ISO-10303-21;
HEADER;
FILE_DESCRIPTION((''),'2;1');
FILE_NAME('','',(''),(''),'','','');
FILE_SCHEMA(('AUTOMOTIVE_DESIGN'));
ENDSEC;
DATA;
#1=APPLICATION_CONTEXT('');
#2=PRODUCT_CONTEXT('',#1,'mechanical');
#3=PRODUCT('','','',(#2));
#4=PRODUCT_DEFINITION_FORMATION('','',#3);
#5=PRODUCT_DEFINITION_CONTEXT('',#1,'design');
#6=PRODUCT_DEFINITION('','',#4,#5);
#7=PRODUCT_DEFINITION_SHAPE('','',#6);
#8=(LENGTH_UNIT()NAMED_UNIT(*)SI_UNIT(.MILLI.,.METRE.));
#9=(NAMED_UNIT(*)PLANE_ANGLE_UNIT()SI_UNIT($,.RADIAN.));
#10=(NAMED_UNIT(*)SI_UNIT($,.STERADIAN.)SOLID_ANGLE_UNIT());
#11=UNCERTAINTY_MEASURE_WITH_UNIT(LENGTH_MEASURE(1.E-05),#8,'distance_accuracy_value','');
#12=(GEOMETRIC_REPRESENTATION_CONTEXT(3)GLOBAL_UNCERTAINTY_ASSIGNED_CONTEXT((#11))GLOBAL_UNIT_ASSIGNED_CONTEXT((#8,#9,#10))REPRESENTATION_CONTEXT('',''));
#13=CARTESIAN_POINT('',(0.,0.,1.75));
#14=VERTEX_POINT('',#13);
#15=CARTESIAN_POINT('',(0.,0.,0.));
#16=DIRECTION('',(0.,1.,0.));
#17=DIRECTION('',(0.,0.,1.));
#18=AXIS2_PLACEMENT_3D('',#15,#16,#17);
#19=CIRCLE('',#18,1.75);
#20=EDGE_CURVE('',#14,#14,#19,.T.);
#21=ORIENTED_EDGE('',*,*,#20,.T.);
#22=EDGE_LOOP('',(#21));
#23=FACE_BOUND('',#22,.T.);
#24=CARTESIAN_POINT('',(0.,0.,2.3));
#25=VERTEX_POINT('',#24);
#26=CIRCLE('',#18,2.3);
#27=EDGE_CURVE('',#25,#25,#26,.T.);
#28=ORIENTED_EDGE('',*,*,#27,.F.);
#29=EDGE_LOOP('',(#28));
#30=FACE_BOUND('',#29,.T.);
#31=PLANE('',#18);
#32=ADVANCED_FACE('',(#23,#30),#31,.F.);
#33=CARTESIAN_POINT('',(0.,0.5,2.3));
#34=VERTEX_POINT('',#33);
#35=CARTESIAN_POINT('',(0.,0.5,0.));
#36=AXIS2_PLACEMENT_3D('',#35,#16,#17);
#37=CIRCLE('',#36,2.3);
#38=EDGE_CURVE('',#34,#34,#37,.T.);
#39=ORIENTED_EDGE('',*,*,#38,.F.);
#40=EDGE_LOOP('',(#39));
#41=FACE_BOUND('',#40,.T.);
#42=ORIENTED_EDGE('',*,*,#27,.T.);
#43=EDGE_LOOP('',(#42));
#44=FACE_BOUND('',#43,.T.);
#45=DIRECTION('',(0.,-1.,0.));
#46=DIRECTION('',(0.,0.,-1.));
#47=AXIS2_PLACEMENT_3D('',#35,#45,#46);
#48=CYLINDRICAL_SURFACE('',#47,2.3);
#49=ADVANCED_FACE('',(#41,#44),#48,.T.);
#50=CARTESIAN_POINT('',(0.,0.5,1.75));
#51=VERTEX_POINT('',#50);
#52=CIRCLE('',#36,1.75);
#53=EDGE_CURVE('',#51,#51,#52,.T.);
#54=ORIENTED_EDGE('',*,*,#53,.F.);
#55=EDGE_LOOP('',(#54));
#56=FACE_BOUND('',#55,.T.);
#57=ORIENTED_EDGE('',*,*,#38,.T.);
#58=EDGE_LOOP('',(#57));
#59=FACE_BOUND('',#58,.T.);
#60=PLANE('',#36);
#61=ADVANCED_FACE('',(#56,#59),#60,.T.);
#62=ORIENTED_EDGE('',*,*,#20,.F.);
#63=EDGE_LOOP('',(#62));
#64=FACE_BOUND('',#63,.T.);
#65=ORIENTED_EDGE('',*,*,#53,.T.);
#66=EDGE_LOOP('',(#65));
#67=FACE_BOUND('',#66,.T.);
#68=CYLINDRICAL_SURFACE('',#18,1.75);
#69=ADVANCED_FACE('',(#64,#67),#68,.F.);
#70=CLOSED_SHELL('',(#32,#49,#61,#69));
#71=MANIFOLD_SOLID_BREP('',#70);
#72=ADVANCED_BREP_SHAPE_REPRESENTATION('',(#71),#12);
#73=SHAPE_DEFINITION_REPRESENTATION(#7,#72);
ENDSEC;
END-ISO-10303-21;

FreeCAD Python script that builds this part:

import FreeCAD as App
import Part
import Sketcher
Q = App.Units.Quantity

doc = App.newDocument("Part")
params = doc.addObject("Spreadsheet::Sheet", "Params")
for row, (alias, value) in enumerate([
    ("sketch1_diameter", "4.6 mm"),
    ("pad1_length", "0.5 mm"),
    ("sketch2_diameter", "3.5 mm"),
], start=1):
    params.set(f"A{row}", alias)
    params.set(f"B{row}", "=" + value)
    params.setAlias(f"B{row}", alias)

body = doc.addObject("PartDesign::Body", "Body")

# Sketch on XZ plane
sketch1 = body.newObject("Sketcher::SketchObject", "Sketch")
sketch1.AttachmentSupport = (doc.getObject("XZ_Plane"), [""])
sketch1.MapMode = "FlatFace"
sketch1.addGeometry(Part.Circle(App.Vector(0, 0, 0), App.Vector(0, 0, 1), 2.3), False)
sketch1.addConstraint(Sketcher.Constraint("Coincident", 0, 3, -1, 1))
sketch1.addConstraint(Sketcher.Constraint("Diameter", 0, Q("4.6 mm")))
sketch1.setExpression("Constraints[1]", "Params.sketch1_diameter")
pad1 = body.newObject("PartDesign::Pad", "Pad")
pad1.Profile = sketch1
pad1.setExpression("Length", "Params.pad1_length")
pad1.Reversed = True

# Sketch on XZ plane
sketch2 = body.newObject("Sketcher::SketchObject", "Sketch001")
sketch2.AttachmentSupport = (doc.getObject("XZ_Plane"), [""])
sketch2.MapMode = "FlatFace"
sketch2.AttachmentOffset = App.Placement(App.Vector(0, 0, -0.5), App.Rotation())
sketch2.addGeometry(Part.Circle(App.Vector(0, 0, 0), App.Vector(0, 0, 1), 1.75), False)
sketch2.addConstraint(Sketcher.Constraint("Coincident", 0, 3, -1, 1))
sketch2.addConstraint(Sketcher.Constraint("Diameter", 0, Q("3.5 mm")))
sketch2.setExpression("Constraints[1]", "Params.sketch2_diameter")
pocket1 = body.newObject("PartDesign::Pocket", "Pocket")
pocket1.Profile = sketch2
pocket1.Type = "ThroughAll"
pocket1.Reversed = True

doc.recompute()
